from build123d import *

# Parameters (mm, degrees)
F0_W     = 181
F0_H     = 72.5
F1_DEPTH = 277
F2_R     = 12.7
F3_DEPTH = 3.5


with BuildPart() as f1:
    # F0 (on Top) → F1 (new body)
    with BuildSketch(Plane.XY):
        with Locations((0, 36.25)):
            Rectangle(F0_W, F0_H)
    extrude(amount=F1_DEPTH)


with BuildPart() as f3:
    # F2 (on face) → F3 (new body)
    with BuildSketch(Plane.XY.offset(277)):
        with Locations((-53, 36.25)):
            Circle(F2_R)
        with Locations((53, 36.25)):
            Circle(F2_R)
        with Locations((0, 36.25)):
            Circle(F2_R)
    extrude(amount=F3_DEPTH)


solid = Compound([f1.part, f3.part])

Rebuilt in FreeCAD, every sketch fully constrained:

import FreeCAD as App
import Part
import Sketcher


def add_polygon(sketch, points):
    """Adds a closed chain of lines whose ends are joined by coincident constraints."""
    first, n = sketch.GeometryCount, len(points)
    for a, b in zip(points, points[1:] + points[:1]):
        sketch.addGeometry(Part.LineSegment(App.Vector(*a, 0), App.Vector(*b, 0)), False)
    for i in range(n):
        sketch.addConstraint(Sketcher.Constraint("Coincident", first + i, 2, first + (i + 1) % n, 1))

doc = App.newDocument("Part")
body = doc.addObject("PartDesign::Body", "Body")

# Sketch on XY plane
sketch1 = body.newObject("Sketcher::SketchObject", "Sketch")
sketch1.AttachmentSupport = (doc.getObject("XY_Plane"), [""])
sketch1.MapMode = "FlatFace"
add_polygon(sketch1, [(-90, 72), (-90, 0), (90, 0), (90, 72)])  # lines 0-3
sketch1.addConstraint([
    Sketcher.Constraint("Vertical", 0),
    Sketcher.Constraint("Horizontal", 1),
    Sketcher.Constraint("Vertical", 2),
    Sketcher.Constraint("Horizontal", 3),
    Sketcher.Constraint("Symmetric", 0, 2, 1, 2, -1, 1),
    Sketcher.Constraint("DistanceX", 1, 1, 1, 2, 181.0),
    Sketcher.Constraint("DistanceY", 0, 2, 0, 1, 72.5),
])
pad1 = body.newObject("PartDesign::Pad", "Pad")
pad1.Profile = sketch1
pad1.Length = 277
body2 = doc.addObject("PartDesign::Body", "Body001")
body2.AllowCompound = True

# Sketch on XY plane
sketch2 = body2.newObject("Sketcher::SketchObject", "Sketch001")
sketch2.AttachmentSupport = (doc.getObject("XY_Plane001"), [""])
sketch2.MapMode = "FlatFace"
sketch2.AttachmentOffset = App.Placement(App.Vector(0, 0, 277), App.Rotation())
sketch2.addGeometry([
    Part.Circle(App.Vector(-53, 36, 0), App.Vector(0, 0, 1), 13),
    Part.Circle(App.Vector(53, 36, 0), App.Vector(0, 0, 1), 13),
    Part.Circle(App.Vector(0, 36, 0), App.Vector(0, 0, 1), 13),
], False)
sketch2.addConstraint([
    Sketcher.Constraint("Equal", 0, 1),
    Sketcher.Constraint("Equal", 1, 2),
    Sketcher.Constraint("Symmetric", 0, 3, 1, 3, -2),
    Sketcher.Constraint("PointOnObject", 2, 3, -2),
    Sketcher.Constraint("Horizontal", 1, 3, 2, 3),
    Sketcher.Constraint("Diameter", 0, 25.4),
    Sketcher.Constraint("DistanceX", 0, 3, -1, 1, 53.0),
    Sketcher.Constraint("DistanceY", -1, 1, 0, 3, 36.25),
])
pad2 = body2.newObject("PartDesign::Pad", "Pad001")
pad2.Profile = sketch2
pad2.Length = 3.5

doc.recompute()
